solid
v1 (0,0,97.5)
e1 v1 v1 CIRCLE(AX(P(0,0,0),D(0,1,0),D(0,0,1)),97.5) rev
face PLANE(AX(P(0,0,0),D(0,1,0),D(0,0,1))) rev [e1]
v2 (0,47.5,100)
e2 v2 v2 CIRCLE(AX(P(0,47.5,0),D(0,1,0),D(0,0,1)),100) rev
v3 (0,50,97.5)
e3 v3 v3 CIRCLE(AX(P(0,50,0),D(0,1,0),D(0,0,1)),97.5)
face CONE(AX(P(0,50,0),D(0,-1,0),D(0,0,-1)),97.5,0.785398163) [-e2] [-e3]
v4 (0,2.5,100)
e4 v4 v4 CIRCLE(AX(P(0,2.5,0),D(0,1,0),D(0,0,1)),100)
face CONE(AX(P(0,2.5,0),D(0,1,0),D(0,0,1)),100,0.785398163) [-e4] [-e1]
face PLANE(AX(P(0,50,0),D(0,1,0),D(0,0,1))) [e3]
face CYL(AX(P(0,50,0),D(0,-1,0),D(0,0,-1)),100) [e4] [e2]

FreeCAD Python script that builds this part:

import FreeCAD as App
import Part
import Sketcher
from FreeCAD import Vector


def edges_at(feature, points):
    """Names of the edges that pass closest to the given points."""
    edges = feature.Shape.Edges
    near = lambda p: min(range(len(edges)), key=lambda i: edges[i].distToShape(Part.Vertex(*p))[0])
    return sorted({f"Edge{near(p) + 1}" for p in points})

doc = App.newDocument("Part")
body = doc.addObject("PartDesign::Body", "Body")

# Sketch on XZ plane
sketch1 = body.newObject("Sketcher::SketchObject", "Sketch")
sketch1.AttachmentSupport = (doc.getObject("XZ_Plane"), [""])
sketch1.MapMode = "FlatFace"
sketch1.addGeometry(Part.Circle(Vector(0, 0, 0), Vector(0, 0, 1), 100), False)
sketch1.addConstraint(Sketcher.Constraint("Coincident", 0, 3, -1, 1))
sketch1.addConstraint(Sketcher.Constraint("Diameter", 0, 200.0))
pad1 = body.newObject("PartDesign::Pad", "Pad")
pad1.Profile = sketch1
pad1.Length = 50
pad1.Reversed = True
doc.recompute()

chamfer = body.newObject("PartDesign::Chamfer", "Chamfer")
chamfer.Base = (pad1, edges_at(pad1, [(-100, 0, 0), (-100, 50, 0)]))
chamfer.Size = 2.5

doc.recompute()
